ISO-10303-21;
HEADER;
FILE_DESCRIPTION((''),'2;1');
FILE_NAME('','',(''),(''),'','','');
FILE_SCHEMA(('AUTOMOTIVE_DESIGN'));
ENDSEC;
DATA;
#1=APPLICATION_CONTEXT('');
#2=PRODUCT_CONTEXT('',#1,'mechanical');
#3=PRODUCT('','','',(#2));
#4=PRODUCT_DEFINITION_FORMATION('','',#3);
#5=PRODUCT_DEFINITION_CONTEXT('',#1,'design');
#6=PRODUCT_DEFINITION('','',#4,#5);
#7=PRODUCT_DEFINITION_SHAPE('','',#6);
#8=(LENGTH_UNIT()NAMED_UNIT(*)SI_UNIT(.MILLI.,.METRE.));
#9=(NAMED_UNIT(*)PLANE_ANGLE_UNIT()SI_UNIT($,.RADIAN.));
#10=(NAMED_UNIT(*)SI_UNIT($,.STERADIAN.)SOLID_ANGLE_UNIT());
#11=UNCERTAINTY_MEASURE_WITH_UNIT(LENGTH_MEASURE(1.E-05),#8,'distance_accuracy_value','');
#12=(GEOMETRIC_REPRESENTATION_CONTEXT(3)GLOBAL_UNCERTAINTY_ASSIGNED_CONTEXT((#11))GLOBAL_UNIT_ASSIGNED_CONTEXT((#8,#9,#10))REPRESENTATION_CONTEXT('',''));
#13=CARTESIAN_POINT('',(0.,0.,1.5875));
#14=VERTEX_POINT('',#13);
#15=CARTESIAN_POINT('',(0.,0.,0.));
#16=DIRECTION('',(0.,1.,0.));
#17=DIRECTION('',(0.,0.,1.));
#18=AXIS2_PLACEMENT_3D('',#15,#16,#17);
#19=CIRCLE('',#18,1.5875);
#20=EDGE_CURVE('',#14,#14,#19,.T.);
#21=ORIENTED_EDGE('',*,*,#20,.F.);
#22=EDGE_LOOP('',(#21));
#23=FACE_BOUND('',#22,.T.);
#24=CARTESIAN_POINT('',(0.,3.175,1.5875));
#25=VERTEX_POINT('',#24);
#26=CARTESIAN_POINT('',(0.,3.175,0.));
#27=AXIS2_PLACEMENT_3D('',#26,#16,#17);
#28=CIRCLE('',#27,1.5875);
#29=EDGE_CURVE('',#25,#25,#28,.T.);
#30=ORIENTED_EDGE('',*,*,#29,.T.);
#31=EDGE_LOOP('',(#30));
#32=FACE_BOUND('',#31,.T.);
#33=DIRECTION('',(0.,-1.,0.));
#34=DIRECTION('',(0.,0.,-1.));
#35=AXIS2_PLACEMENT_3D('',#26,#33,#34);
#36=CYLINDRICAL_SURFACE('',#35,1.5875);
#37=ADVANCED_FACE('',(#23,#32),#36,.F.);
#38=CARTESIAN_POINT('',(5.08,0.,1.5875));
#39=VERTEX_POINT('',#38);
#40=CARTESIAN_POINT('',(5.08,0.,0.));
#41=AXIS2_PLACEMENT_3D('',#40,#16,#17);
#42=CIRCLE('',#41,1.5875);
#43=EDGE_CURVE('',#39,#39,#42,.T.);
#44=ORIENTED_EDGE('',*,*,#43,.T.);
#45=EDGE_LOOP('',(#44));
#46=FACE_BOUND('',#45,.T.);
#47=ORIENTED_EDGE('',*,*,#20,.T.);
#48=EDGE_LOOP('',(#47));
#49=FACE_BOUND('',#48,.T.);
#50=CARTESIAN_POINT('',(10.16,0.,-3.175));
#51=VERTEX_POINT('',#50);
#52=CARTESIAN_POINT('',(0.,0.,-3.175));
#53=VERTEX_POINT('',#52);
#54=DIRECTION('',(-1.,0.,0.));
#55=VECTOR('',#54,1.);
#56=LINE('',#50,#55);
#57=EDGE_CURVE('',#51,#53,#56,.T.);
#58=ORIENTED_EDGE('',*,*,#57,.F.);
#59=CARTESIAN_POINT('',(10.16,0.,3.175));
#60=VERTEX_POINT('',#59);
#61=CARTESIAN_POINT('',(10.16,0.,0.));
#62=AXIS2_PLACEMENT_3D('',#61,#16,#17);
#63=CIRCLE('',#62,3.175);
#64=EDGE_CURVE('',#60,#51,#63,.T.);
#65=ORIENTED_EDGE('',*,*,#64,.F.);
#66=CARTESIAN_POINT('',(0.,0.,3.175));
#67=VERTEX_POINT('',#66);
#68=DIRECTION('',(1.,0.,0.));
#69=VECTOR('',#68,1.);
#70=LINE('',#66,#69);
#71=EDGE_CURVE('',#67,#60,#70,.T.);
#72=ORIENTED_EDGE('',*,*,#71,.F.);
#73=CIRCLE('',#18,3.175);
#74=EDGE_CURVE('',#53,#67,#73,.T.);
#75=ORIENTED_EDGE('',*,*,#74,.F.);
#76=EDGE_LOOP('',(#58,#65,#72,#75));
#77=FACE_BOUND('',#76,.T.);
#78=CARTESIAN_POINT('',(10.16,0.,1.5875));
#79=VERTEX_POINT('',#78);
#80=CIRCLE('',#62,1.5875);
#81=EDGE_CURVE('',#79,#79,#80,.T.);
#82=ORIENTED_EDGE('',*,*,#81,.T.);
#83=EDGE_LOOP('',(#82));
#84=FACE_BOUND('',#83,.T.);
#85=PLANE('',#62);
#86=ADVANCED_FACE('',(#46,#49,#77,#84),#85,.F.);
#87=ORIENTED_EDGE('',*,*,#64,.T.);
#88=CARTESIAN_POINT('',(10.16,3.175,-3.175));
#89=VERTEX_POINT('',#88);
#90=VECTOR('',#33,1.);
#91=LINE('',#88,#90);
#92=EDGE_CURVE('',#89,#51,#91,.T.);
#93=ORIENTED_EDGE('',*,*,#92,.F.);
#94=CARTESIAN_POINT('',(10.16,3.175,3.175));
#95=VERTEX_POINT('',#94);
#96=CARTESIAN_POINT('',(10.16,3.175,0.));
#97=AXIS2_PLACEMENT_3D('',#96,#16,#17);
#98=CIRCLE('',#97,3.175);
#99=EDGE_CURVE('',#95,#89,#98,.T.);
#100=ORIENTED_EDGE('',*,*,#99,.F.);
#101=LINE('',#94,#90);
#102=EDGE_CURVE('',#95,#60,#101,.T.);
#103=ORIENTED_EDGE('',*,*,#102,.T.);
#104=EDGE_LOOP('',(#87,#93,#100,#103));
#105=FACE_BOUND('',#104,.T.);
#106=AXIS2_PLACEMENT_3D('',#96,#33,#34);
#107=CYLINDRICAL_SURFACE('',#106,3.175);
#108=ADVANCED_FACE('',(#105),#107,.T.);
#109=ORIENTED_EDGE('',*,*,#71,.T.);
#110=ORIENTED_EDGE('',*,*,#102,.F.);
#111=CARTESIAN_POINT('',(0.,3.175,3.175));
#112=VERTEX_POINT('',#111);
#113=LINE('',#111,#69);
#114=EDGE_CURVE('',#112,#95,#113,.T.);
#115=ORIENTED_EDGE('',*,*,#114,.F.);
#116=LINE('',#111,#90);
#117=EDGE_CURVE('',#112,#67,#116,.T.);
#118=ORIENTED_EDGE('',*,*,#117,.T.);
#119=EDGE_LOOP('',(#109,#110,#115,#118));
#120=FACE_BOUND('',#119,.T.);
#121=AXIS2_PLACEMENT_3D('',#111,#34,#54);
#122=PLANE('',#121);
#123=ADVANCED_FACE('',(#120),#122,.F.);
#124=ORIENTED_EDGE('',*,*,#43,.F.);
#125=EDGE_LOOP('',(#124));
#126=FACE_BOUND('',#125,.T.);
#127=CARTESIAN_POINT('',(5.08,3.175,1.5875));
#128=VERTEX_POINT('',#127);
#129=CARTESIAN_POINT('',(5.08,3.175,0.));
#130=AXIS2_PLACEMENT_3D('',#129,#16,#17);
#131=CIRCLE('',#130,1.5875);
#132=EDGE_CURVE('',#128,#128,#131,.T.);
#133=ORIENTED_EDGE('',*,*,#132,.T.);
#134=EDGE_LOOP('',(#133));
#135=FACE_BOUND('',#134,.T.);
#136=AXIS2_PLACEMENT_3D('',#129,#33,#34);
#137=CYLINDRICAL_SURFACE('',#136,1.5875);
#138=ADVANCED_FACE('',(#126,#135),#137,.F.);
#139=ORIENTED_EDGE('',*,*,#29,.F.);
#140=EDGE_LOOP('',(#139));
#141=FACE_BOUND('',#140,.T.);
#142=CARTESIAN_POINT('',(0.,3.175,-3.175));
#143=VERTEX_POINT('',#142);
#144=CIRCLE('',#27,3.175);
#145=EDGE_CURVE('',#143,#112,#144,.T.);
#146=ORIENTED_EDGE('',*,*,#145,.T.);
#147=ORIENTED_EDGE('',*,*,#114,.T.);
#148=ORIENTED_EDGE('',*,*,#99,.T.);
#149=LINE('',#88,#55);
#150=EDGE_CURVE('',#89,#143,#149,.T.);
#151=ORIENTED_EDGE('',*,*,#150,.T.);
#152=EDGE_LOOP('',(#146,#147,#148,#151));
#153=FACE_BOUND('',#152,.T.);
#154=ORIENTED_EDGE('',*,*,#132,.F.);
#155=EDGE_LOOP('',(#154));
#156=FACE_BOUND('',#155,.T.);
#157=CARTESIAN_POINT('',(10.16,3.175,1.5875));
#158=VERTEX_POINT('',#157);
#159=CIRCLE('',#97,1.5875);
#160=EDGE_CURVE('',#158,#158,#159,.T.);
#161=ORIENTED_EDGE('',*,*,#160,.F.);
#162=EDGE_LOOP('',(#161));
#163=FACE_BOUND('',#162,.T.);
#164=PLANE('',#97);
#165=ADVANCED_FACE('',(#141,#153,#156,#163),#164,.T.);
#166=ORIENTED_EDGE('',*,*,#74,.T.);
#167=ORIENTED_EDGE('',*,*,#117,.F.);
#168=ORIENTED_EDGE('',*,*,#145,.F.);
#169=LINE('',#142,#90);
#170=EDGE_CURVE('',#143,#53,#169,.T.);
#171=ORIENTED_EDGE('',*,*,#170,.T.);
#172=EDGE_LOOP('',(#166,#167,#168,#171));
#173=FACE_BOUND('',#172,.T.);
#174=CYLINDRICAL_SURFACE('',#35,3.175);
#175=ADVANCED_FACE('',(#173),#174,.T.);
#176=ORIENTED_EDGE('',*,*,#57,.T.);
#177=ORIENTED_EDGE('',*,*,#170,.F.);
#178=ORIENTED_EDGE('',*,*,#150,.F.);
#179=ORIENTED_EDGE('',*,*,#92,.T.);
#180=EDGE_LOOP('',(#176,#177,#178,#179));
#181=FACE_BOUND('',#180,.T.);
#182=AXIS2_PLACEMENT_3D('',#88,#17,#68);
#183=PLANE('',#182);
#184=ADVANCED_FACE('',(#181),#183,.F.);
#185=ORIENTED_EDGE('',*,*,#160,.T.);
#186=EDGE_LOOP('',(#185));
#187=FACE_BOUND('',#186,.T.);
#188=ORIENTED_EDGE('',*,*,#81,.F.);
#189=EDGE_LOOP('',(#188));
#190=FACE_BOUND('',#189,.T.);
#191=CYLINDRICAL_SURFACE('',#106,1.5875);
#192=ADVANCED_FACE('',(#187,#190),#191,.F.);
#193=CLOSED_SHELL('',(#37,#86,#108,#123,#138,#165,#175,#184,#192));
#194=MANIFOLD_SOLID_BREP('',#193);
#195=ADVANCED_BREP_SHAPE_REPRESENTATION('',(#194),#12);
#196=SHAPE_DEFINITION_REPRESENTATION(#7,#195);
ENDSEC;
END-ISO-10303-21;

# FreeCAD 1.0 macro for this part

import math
import FreeCAD as App
import Part
import Sketcher
Q = App.Units.Quantity

doc = App.newDocument("Part")
body = doc.addObject("PartDesign::Body", "Body")

# Sketch on XZ plane
sketch1 = body.newObject("Sketcher::SketchObject", "Sketch")
sketch1.AttachmentSupport = (doc.getObject("XZ_Plane"), [""])
sketch1.MapMode = "FlatFace"
sketch1.addGeometry([
    Part.LineSegment(App.Vector(10.16, -3.175, 0), App.Vector(0, -3.175, 0)),  # 0
    Part.ArcOfCircle(Part.Circle(App.Vector(0, 0, 0), App.Vector(0, 0, 1), 3.175), math.radians(90), math.radians(270)),  # 1
    Part.LineSegment(App.Vector(0, 3.175, 0), App.Vector(10.16, 3.175, 0)),  # 2
    Part.ArcOfCircle(Part.Circle(App.Vector(10.16, 0, 0), App.Vector(0, 0, 1), 3.175), math.radians(-90), math.radians(90)),  # 3
    Part.Circle(App.Vector(0, 0, 0), App.Vector(0, 0, 1), 1.5875),  # 4
    Part.Circle(App.Vector(5.08, 0, 0), App.Vector(0, 0, 1), 1.5875),  # 5
    Part.Circle(App.Vector(10.16, 0, 0), App.Vector(0, 0, 1), 1.5875),  # 6
], False)
sketch1.addConstraint([
    Sketcher.Constraint("Tangent", 0, 2, 1, 2),
    Sketcher.Constraint("Tangent", 1, 1, 2, 1),
    Sketcher.Constraint("Tangent", 2, 2, 3, 2),
    Sketcher.Constraint("Tangent", 3, 1, 0, 1),
    Sketcher.Constraint("Horizontal", 0),
    Sketcher.Constraint("Horizontal", 2),
    Sketcher.Constraint("Coincident", 1, 3, -1, 1),
    Sketcher.Constraint("Coincident", 4, 3, -1, 1),
    Sketcher.Constraint("Coincident", 6, 3, 3, 3),
    Sketcher.Constraint("Equal", 4, 5),
    Sketcher.Constraint("Equal", 5, 6),
    Sketcher.Constraint("PointOnObject", 5, 3, -1),
    Sketcher.Constraint("Diameter", 4, Q("0.125 in")),
    Sketcher.Constraint("DistanceX", 0, 2, 0, 1, Q("0.4 in")),
    Sketcher.Constraint("Radius", 1, Q("0.125 in")),
    Sketcher.Constraint("DistanceX", -1, 1, 5, 3, Q("0.2 in")),
])
pad1 = body.newObject("PartDesign::Pad", "Pad")
pad1.Profile = sketch1
pad1.Length = Q("0.125 in")
pad1.Reversed = True

doc.recompute()
